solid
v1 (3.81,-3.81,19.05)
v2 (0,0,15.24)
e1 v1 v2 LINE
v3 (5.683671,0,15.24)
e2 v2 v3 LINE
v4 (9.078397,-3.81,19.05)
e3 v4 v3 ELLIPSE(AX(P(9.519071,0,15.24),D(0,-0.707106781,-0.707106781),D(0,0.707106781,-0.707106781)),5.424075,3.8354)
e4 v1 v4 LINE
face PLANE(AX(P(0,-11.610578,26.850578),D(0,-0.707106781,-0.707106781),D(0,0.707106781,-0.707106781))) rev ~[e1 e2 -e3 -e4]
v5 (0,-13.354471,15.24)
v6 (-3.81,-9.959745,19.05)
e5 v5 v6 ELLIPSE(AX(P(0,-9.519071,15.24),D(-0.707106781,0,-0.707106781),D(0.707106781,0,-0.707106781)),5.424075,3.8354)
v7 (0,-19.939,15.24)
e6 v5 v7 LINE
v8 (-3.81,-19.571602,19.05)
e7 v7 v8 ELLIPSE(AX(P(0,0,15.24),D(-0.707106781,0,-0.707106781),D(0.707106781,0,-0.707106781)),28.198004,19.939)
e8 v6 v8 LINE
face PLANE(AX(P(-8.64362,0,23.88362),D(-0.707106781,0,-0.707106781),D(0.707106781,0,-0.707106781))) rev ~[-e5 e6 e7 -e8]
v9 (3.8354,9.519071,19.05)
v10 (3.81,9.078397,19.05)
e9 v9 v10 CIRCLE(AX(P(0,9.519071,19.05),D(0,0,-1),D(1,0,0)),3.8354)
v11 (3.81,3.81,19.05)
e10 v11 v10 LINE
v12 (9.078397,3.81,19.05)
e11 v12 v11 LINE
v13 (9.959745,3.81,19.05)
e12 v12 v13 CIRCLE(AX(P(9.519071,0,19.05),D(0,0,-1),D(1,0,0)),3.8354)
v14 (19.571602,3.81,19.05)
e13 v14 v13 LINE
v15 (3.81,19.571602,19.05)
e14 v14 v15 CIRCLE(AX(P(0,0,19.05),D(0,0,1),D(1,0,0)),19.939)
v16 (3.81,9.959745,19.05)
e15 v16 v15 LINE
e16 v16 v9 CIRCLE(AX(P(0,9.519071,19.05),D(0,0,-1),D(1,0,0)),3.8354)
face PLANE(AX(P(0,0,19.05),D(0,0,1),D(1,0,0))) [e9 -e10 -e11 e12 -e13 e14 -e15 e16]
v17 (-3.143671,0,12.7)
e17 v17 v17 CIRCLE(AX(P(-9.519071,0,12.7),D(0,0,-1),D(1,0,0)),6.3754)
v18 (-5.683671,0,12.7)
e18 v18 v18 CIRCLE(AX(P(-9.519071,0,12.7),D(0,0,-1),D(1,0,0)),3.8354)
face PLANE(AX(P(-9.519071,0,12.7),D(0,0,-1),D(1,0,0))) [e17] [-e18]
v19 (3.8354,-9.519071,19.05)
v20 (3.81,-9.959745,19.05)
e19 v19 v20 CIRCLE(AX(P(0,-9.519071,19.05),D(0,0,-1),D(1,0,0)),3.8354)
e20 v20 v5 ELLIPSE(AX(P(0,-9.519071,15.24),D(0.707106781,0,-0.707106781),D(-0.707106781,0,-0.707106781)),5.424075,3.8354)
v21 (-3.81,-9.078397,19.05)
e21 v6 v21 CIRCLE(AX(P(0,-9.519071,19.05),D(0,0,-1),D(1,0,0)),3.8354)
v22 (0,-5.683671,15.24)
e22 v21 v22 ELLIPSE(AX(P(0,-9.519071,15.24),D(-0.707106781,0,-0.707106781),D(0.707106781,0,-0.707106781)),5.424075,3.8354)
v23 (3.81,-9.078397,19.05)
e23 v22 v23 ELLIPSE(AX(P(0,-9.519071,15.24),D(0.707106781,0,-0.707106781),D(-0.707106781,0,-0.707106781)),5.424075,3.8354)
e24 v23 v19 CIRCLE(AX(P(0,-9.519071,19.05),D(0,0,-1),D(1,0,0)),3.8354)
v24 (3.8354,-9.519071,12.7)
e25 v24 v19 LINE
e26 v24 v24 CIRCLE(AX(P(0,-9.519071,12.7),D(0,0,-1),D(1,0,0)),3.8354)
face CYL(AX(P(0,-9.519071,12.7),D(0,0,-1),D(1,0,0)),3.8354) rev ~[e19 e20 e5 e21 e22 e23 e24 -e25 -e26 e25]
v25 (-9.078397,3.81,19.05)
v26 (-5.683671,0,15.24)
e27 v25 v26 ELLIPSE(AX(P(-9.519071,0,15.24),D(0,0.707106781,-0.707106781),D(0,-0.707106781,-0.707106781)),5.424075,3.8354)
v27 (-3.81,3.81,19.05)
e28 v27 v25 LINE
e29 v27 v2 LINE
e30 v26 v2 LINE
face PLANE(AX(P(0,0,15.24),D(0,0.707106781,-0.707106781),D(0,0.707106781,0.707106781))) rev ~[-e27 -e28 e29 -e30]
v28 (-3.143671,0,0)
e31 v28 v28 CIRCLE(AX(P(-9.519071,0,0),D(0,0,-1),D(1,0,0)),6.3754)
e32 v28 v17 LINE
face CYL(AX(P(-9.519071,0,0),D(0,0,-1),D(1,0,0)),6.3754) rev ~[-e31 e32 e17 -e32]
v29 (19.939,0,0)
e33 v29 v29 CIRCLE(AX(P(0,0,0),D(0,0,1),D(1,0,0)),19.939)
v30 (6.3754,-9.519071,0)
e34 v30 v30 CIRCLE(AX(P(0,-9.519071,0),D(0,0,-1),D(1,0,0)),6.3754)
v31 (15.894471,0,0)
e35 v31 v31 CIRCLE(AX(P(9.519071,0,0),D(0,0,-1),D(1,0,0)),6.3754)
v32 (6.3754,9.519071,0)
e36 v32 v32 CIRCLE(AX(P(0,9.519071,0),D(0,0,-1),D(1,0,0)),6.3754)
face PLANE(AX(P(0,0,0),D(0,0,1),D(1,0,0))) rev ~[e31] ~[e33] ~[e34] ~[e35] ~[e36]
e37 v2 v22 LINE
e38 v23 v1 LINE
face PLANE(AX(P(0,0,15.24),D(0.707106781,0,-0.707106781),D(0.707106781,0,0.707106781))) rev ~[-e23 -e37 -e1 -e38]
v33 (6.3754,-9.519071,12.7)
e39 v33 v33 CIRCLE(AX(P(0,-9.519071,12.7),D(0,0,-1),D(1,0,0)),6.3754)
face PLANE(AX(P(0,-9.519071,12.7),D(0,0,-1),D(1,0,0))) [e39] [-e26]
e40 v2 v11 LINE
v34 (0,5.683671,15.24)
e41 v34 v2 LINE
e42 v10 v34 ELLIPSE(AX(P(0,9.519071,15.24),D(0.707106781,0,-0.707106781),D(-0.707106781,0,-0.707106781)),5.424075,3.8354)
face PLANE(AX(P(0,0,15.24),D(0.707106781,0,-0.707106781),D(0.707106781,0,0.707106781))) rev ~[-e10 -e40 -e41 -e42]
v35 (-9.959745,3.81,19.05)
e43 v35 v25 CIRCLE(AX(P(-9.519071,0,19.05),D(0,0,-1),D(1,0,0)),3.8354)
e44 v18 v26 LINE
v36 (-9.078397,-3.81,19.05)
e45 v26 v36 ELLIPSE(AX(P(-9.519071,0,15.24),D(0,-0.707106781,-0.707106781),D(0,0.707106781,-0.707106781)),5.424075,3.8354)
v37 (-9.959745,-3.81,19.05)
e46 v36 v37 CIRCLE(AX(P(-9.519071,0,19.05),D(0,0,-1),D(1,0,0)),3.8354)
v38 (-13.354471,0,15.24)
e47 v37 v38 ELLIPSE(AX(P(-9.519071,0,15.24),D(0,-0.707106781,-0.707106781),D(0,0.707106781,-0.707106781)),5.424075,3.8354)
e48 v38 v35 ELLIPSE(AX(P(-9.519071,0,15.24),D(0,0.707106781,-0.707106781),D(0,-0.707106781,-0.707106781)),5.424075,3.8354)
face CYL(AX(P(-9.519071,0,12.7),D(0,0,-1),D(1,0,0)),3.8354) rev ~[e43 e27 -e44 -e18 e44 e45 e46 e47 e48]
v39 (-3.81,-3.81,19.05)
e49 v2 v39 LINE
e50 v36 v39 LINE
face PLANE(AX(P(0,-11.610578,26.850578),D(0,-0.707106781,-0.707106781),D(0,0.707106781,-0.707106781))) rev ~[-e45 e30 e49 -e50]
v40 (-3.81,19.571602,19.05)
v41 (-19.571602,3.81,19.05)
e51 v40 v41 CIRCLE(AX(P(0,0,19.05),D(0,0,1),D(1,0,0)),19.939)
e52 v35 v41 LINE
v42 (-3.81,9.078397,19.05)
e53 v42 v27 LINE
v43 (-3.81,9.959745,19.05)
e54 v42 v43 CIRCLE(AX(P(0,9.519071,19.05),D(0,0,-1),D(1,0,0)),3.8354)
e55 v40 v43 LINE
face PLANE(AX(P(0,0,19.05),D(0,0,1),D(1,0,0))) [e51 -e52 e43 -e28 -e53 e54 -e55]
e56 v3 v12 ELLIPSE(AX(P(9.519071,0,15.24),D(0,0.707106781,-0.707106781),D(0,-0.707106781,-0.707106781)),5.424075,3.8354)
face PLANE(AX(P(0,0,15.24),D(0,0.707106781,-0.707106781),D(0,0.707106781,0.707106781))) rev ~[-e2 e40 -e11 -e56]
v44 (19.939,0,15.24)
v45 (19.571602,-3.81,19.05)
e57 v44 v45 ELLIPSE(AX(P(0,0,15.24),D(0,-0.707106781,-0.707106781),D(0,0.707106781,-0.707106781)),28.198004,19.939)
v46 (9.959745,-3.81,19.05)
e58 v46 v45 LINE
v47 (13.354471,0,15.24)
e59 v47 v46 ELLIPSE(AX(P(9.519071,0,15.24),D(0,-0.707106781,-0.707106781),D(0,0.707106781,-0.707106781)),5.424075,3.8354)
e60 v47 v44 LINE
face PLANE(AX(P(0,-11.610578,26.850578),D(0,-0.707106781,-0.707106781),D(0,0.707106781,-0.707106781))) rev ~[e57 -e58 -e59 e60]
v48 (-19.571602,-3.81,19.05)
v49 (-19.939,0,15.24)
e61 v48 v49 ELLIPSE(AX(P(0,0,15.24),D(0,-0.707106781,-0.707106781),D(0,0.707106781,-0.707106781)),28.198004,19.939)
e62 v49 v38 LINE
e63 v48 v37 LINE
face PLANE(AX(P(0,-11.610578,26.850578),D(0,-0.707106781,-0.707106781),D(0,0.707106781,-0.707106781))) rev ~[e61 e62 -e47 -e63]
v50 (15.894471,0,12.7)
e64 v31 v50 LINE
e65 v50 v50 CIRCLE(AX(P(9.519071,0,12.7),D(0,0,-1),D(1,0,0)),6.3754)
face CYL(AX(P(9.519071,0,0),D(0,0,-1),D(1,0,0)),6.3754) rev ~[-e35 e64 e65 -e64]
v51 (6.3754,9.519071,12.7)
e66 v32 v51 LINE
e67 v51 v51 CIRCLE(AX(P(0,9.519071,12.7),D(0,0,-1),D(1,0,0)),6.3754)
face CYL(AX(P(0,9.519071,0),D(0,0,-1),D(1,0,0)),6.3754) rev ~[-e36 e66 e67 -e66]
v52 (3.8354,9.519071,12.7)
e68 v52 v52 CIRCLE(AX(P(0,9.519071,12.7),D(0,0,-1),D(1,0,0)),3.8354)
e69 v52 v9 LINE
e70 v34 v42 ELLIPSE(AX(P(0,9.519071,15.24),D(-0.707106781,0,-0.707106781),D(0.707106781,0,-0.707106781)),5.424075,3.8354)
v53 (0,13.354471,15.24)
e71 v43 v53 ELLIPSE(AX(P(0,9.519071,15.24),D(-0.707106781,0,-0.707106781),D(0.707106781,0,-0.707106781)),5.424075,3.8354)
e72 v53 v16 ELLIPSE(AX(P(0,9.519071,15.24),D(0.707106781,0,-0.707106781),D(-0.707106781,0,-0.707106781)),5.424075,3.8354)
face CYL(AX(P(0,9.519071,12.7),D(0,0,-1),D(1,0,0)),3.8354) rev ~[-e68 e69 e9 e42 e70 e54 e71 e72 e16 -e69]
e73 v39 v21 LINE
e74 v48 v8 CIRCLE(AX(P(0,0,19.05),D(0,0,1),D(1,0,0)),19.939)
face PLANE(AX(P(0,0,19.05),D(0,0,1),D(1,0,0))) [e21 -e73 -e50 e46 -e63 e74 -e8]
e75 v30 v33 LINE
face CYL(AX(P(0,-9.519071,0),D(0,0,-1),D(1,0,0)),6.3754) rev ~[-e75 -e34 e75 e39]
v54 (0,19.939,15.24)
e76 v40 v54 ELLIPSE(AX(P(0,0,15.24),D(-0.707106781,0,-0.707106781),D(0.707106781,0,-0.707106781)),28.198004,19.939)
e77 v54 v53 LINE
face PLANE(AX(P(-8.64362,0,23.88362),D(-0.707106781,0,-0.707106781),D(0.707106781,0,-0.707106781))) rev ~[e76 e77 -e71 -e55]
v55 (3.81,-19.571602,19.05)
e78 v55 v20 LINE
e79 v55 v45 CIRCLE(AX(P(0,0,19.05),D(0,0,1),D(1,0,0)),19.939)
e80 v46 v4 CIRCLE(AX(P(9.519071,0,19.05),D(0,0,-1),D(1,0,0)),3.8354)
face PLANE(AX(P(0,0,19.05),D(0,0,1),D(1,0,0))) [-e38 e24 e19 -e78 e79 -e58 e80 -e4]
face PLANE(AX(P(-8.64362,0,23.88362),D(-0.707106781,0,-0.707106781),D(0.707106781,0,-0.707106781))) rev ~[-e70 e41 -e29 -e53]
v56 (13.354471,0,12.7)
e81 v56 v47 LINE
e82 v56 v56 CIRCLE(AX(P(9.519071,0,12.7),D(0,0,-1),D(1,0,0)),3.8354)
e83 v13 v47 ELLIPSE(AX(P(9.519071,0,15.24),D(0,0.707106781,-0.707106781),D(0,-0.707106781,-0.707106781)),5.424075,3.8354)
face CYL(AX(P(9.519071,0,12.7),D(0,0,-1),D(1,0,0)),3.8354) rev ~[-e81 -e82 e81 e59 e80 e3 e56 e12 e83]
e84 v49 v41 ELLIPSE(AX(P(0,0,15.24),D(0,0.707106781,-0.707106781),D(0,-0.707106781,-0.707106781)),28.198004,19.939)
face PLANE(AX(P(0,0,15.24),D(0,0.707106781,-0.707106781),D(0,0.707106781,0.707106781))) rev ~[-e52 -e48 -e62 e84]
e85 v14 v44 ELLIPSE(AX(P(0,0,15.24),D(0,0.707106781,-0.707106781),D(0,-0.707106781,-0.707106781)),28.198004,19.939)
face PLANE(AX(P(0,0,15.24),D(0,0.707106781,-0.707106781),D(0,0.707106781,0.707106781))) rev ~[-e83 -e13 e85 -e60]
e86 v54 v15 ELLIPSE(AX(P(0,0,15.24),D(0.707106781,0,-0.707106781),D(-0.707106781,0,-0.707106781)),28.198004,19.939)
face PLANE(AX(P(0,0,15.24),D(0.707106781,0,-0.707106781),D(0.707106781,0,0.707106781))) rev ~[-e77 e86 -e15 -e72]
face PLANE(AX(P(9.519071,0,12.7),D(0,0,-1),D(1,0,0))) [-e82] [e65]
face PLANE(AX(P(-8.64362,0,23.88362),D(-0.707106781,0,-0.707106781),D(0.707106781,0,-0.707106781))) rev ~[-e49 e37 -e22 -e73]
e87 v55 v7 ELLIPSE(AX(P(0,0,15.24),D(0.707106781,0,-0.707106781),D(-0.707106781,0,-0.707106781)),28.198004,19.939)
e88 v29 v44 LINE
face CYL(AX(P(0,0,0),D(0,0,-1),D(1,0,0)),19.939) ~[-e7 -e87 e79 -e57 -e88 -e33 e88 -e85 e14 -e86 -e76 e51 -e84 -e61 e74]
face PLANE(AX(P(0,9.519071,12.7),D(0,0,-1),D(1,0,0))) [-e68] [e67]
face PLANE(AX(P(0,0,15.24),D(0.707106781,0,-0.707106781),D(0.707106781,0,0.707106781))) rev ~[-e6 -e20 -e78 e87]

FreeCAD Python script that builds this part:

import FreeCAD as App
import Part
import Sketcher
Q = App.Units.Quantity

doc = App.newDocument("Part")
body = doc.addObject("PartDesign::Body", "Body")

sketch1 = doc.addObject("Sketcher::SketchObject", "Sketch")
body.addObject(sketch1)
sketch1.AttachmentSupport = (doc.XY_Plane, [""])
sketch1.MapMode = "FlatFace"
sketch1.addGeometry(Part.Circle(App.Vector(0, 0, 0), App.Vector(0, 0, 1), 20), False)
sketch1.addConstraint(Sketcher.Constraint("Coincident", 0, 3, -1, 1))
sketch1.addConstraint(Sketcher.Constraint("Diameter", 0, Q("1.57 in")))
pad1 = doc.addObject("PartDesign::Pad", "Pad")
body.addObject(pad1)
pad1.Profile = sketch1
pad1.Length = Q("0.75 in")

sketch2 = doc.addObject("Sketcher::SketchObject", "Sketch001")
body.addObject(sketch2)
sketch2.AttachmentSupport = (doc.XY_Plane, [""])
sketch2.MapMode = "FlatFace"
sketch2.addGeometry(Part.Circle(App.Vector(-10, 0, 0), App.Vector(0, 0, 1), 6), False)
sketch2.addGeometry(Part.Circle(App.Vector(0, -10, 0), App.Vector(0, 0, 1), 6), False)
sketch2.addGeometry(Part.Circle(App.Vector(10, 0, 0), App.Vector(0, 0, 1), 6), False)
sketch2.addGeometry(Part.Circle(App.Vector(0, 10, 0), App.Vector(0, 0, 1), 6), False)
sketch2.addConstraint(Sketcher.Constraint("Equal", 0, 1))
sketch2.addConstraint(Sketcher.Constraint("Equal", 1, 2))
sketch2.addConstraint(Sketcher.Constraint("Equal", 2, 3))
sketch2.addConstraint(Sketcher.Constraint("Symmetric", 0, 3, 2, 3, -1, 1))
sketch2.addConstraint(Sketcher.Constraint("Symmetric", 1, 3, 3, 3, -1, 1))
sketch2.addConstraint(Sketcher.Constraint("PointOnObject", 0, 3, -1))
sketch2.addConstraint(Sketcher.Constraint("PointOnObject", 1, 3, -2))
sketch2.addConstraint(Sketcher.Constraint("Diameter", 0, Q("0.502 in")))
sketch2.addConstraint(Sketcher.Constraint("DistanceX", 0, 3, -1, 1, Q("9.519071 mm")))
sketch2.addConstraint(Sketcher.Constraint("DistanceY", 1, 3, -1, 1, Q("9.519071 mm")))
pocket1 = doc.addObject("PartDesign::Pocket", "Pocket")
body.addObject(pocket1)
pocket1.Profile = sketch2
pocket1.Length = Q("0.5 in")
pocket1.Reversed = True

sketch3 = doc.addObject("Sketcher::SketchObject", "Sketch002")
body.addObject(sketch3)
sketch3.AttachmentSupport = (doc.XY_Plane, [""])
sketch3.MapMode = "FlatFace"
sketch3.AttachmentOffset = App.Placement(App.Vector(0, 0, 0.5 * 25.4), App.Rotation())
sketch3.addGeometry(Part.Circle(App.Vector(0, -9.5, 0), App.Vector(0, 0, 1), 3.8), False)
sketch3.addGeometry(Part.Circle(App.Vector(-9.5, 0, 0), App.Vector(0, 0, 1), 3.8), False)
sketch3.addGeometry(Part.Circle(App.Vector(0, 9.5, 0), App.Vector(0, 0, 1), 3.8), False)
sketch3.addGeometry(Part.Circle(App.Vector(9.5, 0, 0), App.Vector(0, 0, 1), 3.8), False)
sketch3.addConstraint(Sketcher.Constraint("Equal", 0, 1))
sketch3.addConstraint(Sketcher.Constraint("Equal", 1, 2))
sketch3.addConstraint(Sketcher.Constraint("Equal", 2, 3))
sketch3.addConstraint(Sketcher.Constraint("Symmetric", 0, 3, 2, 3, -1, 1))
sketch3.addConstraint(Sketcher.Constraint("Symmetric", 1, 3, 3, 3, -1, 1))
sketch3.addConstraint(Sketcher.Constraint("PointOnObject", 0, 3, -2))
sketch3.addConstraint(Sketcher.Constraint("PointOnObject", 1, 3, -1))
sketch3.addConstraint(Sketcher.Constraint("Diameter", 0, Q("0.302 in")))
sketch3.addConstraint(Sketcher.Constraint("DistanceY", 0, 3, -1, 1, Q("9.519071 mm")))
sketch3.addConstraint(Sketcher.Constraint("DistanceX", 1, 3, -1, 1, Q("9.519071 mm")))
pocket2 = doc.addObject("PartDesign::Pocket", "Pocket001")
body.addObject(pocket2)
pocket2.Profile = sketch3
pocket2.Type = "ThroughAll"
pocket2.Reversed = True

sketch4 = doc.addObject("Sketcher::SketchObject", "Sketch003")
body.addObject(sketch4)
sketch4.AttachmentSupport = (doc.XZ_Plane, [""])
sketch4.MapMode = "FlatFace"
sketch4.addGeometry(Part.LineSegment(App.Vector(-9, 24, 0), App.Vector(0, 15, 0)), False)
sketch4.addGeometry(Part.LineSegment(App.Vector(0, 15, 0), App.Vector(9, 24, 0)), False)
sketch4.addGeometry(Part.LineSegment(App.Vector(9, 24, 0), App.Vector(-9, 24, 0)), False)
sketch4.addConstraint(Sketcher.Constraint("Coincident", 0, 2, 1, 1))
sketch4.addConstraint(Sketcher.Constraint("Coincident", 1, 2, 2, 1))
sketch4.addConstraint(Sketcher.Constraint("Coincident", 2, 2, 0, 1))
sketch4.addConstraint(Sketcher.Constraint("Horizontal", 2))
sketch4.addConstraint(Sketcher.Constraint("PointOnObject", 0, 2, -2))
sketch4.addConstraint(Sketcher.Constraint("Perpendicular", 0, 1))
sketch4.addConstraint(Sketcher.Constraint("Equal", 0, 1))
sketch4.addConstraint(Sketcher.Constraint("DistanceY", -1, 1, 0, 2, Q("0.6 in")))
sketch4.addConstraint(Sketcher.Constraint("DistanceX", 2, 2, 2, 1, Q("0.6806 in")))
pocket3 = doc.addObject("PartDesign::Pocket", "Pocket002")
body.addObject(pocket3)
pocket3.Profile = sketch4
pocket3.Length = Q("3 in")
pocket3.Midplane = True

sketch5 = doc.addObject("Sketcher::SketchObject", "Sketch004")
body.addObject(sketch5)
sketch5.AttachmentSupport = (doc.YZ_Plane, [""])
sketch5.MapMode = "FlatFace"
sketch5.addGeometry(Part.LineSegment(App.Vector(-12, 27, 0), App.Vector(0, 15, 0)), False)
sketch5.addGeometry(Part.LineSegment(App.Vector(0, 15, 0), App.Vector(12, 27, 0)), False)
sketch5.addGeometry(Part.LineSegment(App.Vector(12, 27, 0), App.Vector(-12, 27, 0)), False)
sketch5.addConstraint(Sketcher.Constraint("Coincident", 0, 2, 1, 1))
sketch5.addConstraint(Sketcher.Constraint("Coincident", 1, 2, 2, 1))
sketch5.addConstraint(Sketcher.Constraint("Coincident", 2, 2, 0, 1))
sketch5.addConstraint(Sketcher.Constraint("Horizontal", 2))
sketch5.addConstraint(Sketcher.Constraint("PointOnObject", 0, 2, -2))
sketch5.addConstraint(Sketcher.Constraint("Perpendicular", 0, 1))
sketch5.addConstraint(Sketcher.Constraint("Equal", 0, 1))
sketch5.addConstraint(Sketcher.Constraint("DistanceY", -1, 1, 0, 2, Q("0.6 in")))
sketch5.addConstraint(Sketcher.Constraint("DistanceX", 2, 2, 2, 1, Q("23.221156 mm")))
pocket4 = doc.addObject("PartDesign::Pocket", "Pocket003")
body.addObject(pocket4)
pocket4.Profile = sketch5
pocket4.Length = Q("3 in")
pocket4.Midplane = True

doc.recompute()
